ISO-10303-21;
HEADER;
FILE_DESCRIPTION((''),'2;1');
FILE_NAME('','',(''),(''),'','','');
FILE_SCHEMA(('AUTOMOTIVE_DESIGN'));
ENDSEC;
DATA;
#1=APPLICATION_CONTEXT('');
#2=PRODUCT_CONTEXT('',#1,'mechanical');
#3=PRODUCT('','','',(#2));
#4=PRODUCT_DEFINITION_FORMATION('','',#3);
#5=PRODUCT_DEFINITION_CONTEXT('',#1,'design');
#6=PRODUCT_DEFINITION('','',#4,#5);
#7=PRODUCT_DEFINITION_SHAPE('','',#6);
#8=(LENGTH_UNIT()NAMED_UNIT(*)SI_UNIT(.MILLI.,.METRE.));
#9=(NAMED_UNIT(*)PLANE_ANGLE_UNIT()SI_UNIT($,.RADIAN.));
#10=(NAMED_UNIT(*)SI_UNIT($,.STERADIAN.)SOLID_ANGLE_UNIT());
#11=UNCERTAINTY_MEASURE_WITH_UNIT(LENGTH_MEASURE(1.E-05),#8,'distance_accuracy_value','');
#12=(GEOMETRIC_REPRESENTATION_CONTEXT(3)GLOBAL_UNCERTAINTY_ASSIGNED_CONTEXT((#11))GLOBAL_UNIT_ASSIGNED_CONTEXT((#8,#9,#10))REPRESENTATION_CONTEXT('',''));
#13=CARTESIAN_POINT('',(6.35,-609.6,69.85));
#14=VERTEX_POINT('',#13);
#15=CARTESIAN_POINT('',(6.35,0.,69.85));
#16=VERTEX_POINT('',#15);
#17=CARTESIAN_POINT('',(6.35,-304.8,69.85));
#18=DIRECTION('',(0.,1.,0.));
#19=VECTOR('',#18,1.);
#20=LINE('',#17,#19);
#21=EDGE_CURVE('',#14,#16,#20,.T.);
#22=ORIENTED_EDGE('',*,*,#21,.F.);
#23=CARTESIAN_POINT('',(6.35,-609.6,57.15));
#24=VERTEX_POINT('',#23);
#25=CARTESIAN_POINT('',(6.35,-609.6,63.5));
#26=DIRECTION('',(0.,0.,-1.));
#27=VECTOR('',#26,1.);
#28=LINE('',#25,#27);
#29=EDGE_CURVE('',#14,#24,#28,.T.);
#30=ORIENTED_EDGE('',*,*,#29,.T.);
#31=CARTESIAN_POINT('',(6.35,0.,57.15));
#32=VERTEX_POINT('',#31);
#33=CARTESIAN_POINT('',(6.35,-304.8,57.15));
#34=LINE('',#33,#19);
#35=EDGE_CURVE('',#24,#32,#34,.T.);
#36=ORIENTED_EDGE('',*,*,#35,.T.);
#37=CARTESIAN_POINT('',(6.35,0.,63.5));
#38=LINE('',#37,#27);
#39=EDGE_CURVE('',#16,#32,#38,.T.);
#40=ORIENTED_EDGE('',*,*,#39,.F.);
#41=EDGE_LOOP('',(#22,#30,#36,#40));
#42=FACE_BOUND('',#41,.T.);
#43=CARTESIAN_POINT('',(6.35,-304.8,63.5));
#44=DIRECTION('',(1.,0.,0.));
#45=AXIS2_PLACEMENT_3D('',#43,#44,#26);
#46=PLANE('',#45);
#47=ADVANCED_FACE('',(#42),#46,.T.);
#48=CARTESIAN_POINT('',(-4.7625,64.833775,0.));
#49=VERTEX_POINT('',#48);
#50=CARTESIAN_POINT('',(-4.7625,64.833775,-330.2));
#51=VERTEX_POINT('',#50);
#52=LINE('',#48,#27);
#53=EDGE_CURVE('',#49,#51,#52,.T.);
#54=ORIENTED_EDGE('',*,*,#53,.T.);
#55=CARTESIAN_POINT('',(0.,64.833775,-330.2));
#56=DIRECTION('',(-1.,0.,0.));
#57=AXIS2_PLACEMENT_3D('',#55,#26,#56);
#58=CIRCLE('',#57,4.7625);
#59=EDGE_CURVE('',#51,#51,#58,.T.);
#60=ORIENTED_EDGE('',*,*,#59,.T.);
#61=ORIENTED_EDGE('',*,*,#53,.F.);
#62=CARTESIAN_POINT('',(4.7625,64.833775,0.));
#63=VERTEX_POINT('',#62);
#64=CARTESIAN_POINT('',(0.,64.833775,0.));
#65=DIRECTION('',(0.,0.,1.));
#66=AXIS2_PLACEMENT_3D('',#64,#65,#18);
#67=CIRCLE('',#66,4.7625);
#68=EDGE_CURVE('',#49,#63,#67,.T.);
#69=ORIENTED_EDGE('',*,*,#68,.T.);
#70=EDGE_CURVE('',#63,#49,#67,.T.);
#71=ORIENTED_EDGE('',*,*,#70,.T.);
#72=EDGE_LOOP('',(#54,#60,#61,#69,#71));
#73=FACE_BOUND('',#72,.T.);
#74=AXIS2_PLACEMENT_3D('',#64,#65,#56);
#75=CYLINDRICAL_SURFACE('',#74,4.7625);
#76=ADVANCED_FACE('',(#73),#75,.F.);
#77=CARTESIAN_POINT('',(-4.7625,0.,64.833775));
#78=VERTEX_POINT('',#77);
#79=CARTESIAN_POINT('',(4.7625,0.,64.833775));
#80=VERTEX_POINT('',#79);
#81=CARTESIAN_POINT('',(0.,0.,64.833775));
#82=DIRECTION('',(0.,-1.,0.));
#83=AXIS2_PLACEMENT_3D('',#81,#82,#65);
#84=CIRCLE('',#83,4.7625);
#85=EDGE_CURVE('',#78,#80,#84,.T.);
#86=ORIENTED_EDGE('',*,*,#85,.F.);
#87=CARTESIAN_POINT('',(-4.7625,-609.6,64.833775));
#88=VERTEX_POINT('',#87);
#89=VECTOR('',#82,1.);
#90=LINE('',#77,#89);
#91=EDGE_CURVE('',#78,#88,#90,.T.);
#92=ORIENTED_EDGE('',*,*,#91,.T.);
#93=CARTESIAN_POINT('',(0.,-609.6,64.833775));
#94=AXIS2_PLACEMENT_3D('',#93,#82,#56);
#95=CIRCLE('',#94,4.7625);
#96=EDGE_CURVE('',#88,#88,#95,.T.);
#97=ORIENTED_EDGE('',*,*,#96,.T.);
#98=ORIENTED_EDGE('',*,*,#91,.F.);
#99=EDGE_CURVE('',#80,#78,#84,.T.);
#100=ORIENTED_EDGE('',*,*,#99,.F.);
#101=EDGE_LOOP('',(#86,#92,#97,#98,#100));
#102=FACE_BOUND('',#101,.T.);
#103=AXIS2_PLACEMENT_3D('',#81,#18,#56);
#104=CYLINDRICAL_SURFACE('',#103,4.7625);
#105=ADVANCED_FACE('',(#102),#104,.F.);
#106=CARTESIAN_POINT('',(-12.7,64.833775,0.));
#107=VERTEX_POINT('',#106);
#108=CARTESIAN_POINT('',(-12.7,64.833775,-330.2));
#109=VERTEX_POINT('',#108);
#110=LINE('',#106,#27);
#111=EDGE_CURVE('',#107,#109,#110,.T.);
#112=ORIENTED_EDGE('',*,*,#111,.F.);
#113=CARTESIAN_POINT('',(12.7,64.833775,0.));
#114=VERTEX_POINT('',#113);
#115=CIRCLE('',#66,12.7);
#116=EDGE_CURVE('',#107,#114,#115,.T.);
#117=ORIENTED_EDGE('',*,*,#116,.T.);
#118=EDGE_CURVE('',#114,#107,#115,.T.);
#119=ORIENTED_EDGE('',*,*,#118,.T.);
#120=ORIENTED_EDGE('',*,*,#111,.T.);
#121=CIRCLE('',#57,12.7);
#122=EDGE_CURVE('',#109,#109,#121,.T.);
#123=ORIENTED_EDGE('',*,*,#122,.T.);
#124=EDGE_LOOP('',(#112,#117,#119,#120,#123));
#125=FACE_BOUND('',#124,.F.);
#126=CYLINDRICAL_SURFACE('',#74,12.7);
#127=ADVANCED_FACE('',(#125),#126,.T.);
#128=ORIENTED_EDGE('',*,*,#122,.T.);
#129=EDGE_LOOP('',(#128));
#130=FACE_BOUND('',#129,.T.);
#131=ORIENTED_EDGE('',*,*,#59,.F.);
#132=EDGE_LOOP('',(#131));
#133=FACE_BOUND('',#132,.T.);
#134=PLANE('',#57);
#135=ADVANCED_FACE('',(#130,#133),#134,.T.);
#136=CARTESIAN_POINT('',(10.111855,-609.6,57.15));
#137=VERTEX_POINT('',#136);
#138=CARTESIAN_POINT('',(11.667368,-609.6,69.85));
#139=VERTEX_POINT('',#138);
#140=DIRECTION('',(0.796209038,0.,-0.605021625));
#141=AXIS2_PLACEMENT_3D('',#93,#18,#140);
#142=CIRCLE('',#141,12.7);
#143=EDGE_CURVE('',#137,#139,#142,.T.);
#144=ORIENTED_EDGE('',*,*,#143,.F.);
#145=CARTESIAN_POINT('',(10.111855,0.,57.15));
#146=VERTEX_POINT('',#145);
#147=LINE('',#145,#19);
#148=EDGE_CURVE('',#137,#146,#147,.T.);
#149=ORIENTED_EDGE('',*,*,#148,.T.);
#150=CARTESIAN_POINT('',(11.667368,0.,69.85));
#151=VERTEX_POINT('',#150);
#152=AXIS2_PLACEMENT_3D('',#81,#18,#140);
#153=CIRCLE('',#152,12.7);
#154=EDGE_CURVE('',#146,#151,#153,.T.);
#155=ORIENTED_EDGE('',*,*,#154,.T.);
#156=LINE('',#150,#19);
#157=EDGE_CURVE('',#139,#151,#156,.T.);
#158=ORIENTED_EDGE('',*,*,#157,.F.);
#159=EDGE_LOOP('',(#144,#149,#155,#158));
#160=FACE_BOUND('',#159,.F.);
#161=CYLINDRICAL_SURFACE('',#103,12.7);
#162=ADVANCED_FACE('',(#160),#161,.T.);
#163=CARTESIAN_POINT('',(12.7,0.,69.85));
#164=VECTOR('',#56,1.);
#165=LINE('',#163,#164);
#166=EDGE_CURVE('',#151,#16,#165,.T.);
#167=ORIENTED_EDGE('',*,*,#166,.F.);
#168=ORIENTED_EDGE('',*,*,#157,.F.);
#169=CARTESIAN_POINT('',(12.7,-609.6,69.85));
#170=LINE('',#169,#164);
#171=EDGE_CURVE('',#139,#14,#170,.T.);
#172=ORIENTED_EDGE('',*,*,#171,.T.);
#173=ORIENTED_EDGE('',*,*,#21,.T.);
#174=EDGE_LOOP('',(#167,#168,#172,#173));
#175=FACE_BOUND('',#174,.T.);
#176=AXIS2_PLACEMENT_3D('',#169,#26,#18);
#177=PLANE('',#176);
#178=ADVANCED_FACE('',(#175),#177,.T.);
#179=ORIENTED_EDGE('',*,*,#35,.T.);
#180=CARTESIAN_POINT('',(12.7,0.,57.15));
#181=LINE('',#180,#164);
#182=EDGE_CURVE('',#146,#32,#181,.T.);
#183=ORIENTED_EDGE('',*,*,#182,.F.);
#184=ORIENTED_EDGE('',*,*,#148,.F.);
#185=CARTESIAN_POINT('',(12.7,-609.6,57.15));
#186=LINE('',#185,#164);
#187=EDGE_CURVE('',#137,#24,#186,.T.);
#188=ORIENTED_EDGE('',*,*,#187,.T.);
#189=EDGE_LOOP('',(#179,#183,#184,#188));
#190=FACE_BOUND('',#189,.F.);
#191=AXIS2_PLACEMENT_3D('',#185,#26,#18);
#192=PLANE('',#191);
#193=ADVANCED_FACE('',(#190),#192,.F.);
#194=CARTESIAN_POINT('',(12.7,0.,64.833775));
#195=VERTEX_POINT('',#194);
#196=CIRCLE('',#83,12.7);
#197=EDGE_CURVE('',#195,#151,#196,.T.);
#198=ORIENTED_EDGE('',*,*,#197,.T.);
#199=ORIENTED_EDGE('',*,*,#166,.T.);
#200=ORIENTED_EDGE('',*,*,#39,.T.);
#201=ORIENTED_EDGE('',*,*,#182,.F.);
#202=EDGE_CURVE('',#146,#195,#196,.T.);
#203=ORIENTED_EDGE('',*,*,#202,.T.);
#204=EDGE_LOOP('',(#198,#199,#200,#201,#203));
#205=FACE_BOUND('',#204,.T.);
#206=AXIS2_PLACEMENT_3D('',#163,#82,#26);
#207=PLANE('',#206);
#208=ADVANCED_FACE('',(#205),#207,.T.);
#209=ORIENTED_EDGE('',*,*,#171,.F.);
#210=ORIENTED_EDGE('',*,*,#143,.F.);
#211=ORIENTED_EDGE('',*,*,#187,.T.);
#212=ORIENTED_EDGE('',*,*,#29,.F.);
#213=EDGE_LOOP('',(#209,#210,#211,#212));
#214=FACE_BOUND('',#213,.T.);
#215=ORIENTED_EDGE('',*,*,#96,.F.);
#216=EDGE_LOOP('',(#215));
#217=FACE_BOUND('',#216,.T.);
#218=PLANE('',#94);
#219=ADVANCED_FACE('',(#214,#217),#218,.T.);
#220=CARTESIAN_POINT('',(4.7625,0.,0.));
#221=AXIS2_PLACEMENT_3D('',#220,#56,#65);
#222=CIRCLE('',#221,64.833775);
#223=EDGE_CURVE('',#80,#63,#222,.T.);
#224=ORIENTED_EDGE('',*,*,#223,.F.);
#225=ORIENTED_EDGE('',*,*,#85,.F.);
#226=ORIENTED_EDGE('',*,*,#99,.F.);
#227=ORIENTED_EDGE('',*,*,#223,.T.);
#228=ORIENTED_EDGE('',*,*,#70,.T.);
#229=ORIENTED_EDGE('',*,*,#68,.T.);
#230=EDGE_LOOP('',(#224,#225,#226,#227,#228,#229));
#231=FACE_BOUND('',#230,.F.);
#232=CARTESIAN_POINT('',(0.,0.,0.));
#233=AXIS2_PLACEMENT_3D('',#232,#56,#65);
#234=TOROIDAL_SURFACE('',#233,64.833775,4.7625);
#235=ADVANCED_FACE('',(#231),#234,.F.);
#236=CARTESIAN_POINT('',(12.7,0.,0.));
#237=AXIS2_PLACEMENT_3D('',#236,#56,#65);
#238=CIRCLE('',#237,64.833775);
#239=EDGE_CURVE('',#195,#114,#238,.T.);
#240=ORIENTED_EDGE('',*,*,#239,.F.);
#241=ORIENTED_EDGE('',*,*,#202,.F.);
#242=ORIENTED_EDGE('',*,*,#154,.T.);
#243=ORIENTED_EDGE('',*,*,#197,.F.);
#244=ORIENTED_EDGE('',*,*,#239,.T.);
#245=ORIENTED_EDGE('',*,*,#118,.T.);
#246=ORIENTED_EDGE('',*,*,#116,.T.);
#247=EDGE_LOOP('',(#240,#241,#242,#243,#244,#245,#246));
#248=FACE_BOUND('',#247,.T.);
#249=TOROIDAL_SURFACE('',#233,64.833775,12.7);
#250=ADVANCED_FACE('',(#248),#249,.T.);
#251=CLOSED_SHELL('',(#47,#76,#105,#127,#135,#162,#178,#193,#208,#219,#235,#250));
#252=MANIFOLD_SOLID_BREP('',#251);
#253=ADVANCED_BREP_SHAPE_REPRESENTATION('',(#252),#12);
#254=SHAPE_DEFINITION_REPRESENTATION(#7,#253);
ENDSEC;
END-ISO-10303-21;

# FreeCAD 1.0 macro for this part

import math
import FreeCAD as App
import Part
import Sketcher

V = App.Vector
Q = App.Units.Quantity


def add_polygon(sketch, points):
    """Adds a closed chain of lines whose ends are joined by coincident constraints."""
    first, n = sketch.GeometryCount, len(points)
    for a, b in zip(points, points[1:] + points[:1]):
        sketch.addGeometry(Part.LineSegment(App.Vector(*a, 0), App.Vector(*b, 0)), False)
    for i in range(n):
        sketch.addConstraint(Sketcher.Constraint("Coincident", first + i, 2, first + (i + 1) % n, 1))

doc = App.newDocument("Part")
body = doc.addObject("PartDesign::Body", "Body")

sketch1 = body.newObject("Sketcher::SketchObject", "Sketch")
sketch1.AttachmentSupport = (doc.getObject("XZ_Plane"), [""])
sketch1.MapMode = "FlatFace"
sketch1.addGeometry(Part.Circle(V(0, 64.8, 0), V(0, 0, 1), 12.7), False)
sketch1.addGeometry(Part.Circle(V(0, 64.8, 0), V(0, 0, 1), 4.8), False)
sketch1.addConstraint(Sketcher.Constraint("Coincident", 1, 3, 0, 3))
sketch1.addConstraint(Sketcher.Constraint("PointOnObject", 0, 3, -2))
sketch1.addConstraint(Sketcher.Constraint("Diameter", 0, Q("1 in")))
sketch1.addConstraint(Sketcher.Constraint("Diameter", 1, Q("0.375 in")))
sketch1.addConstraint(Sketcher.Constraint("DistanceY", -1, 1, 0, 3, Q("64.833775 mm")))

sketch2 = body.newObject("Sketcher::SketchObject", "Sketch001")
sketch2.AttachmentSupport = (doc.getObject("YZ_Plane"), [""])
sketch2.MapMode = "FlatFace"
sketch2.addGeometry(Part.ArcOfCircle(Part.Circle(V(0, 0, 0), V(0, 0, 1), 65), math.radians(0), math.radians(90)), False)
sketch2.addConstraint(Sketcher.Constraint("Coincident", 0, 3, -1, 1))
sketch2.addConstraint(Sketcher.Constraint("PointOnObject", 0, 1, -1))
sketch2.addConstraint(Sketcher.Constraint("PointOnObject", 0, 2, -2))
sketch2.addConstraint(Sketcher.Constraint("Radius", 0, Q("64.833775 mm")))
doc.recompute()

additivepipe = body.newObject("PartDesign::AdditivePipe", "AdditivePipe")
additivepipe.Profile = sketch1
additivepipe.Spine = (sketch2, ["Edge1"])

sketch3 = body.newObject("Sketcher::SketchObject", "Sketch002")
sketch3.AttachmentSupport = (doc.getObject("XZ_Plane"), [""])
sketch3.MapMode = "FlatFace"
sketch3.addGeometry(Part.Circle(V(0, 64.8, 0), V(0, 0, 1), 12.7), False)
sketch3.addGeometry(Part.Circle(V(0, 64.8, 0), V(0, 0, 1), 4.8), False)
sketch3.addConstraint(Sketcher.Constraint("Coincident", 1, 3, 0, 3))
sketch3.addConstraint(Sketcher.Constraint("PointOnObject", 0, 3, -2))
sketch3.addConstraint(Sketcher.Constraint("Diameter", 0, Q("1 in")))
sketch3.addConstraint(Sketcher.Constraint("Diameter", 1, Q("0.375 in")))
sketch3.addConstraint(Sketcher.Constraint("DistanceY", -1, 1, 0, 3, Q("64.833775 mm")))
pad1 = body.newObject("PartDesign::Pad", "Pad")
pad1.Profile = sketch3
pad1.Length = Q("24 in")

sketch4 = body.newObject("Sketcher::SketchObject", "Sketch003")
sketch4.AttachmentSupport = (doc.getObject("XY_Plane"), [""])
sketch4.MapMode = "FlatFace"
sketch4.addGeometry(Part.Circle(V(0, 64.8, 0), V(0, 0, 1), 12.7), False)
sketch4.addGeometry(Part.Circle(V(0, 64.8, 0), V(0, 0, 1), 4.8), False)
sketch4.addConstraint(Sketcher.Constraint("Coincident", 1, 3, 0, 3))
sketch4.addConstraint(Sketcher.Constraint("PointOnObject", 0, 3, -2))
sketch4.addConstraint(Sketcher.Constraint("Diameter", 0, Q("1 in")))
sketch4.addConstraint(Sketcher.Constraint("Diameter", 1, Q("0.375 in")))
sketch4.addConstraint(Sketcher.Constraint("DistanceY", -1, 1, 0, 3, Q("64.833775 mm")))
pad2 = body.newObject("PartDesign::Pad", "Pad001")
pad2.Profile = sketch4
pad2.Length = Q("13 in")
pad2.Reversed = True

sketch5 = body.newObject("Sketcher::SketchObject", "Sketch004")
sketch5.AttachmentSupport = (doc.getObject("YZ_Plane"), [""])
sketch5.MapMode = "FlatFace"
sketch5.AttachmentOffset = App.Placement(V(0, 0, 0.5 * 25.4), App.Rotation())
add_polygon(sketch5, [(0, 70), (-610, 70), (-610, 57), (0, 57)])
sketch5.addConstraint(Sketcher.Constraint("Horizontal", 0))
sketch5.addConstraint(Sketcher.Constraint("Vertical", 1))
sketch5.addConstraint(Sketcher.Constraint("Horizontal", 2))
sketch5.addConstraint(Sketcher.Constraint("Vertical", 3))
sketch5.addConstraint(Sketcher.Constraint("PointOnObject", 2, 2, -2))
sketch5.addConstraint(Sketcher.Constraint("DistanceX", 0, 2, 0, 1, Q("24 in")))
sketch5.addConstraint(Sketcher.Constraint("DistanceY", 1, 2, 1, 1, Q("0.5 in")))
sketch5.addConstraint(Sketcher.Constraint("DistanceY", -1, 1, 0, 2, Q("2.75 in")))
pocket1 = body.newObject("PartDesign::Pocket", "Pocket")
pocket1.Profile = sketch5
pocket1.Length = Q("0.25 in")

doc.recompute()
